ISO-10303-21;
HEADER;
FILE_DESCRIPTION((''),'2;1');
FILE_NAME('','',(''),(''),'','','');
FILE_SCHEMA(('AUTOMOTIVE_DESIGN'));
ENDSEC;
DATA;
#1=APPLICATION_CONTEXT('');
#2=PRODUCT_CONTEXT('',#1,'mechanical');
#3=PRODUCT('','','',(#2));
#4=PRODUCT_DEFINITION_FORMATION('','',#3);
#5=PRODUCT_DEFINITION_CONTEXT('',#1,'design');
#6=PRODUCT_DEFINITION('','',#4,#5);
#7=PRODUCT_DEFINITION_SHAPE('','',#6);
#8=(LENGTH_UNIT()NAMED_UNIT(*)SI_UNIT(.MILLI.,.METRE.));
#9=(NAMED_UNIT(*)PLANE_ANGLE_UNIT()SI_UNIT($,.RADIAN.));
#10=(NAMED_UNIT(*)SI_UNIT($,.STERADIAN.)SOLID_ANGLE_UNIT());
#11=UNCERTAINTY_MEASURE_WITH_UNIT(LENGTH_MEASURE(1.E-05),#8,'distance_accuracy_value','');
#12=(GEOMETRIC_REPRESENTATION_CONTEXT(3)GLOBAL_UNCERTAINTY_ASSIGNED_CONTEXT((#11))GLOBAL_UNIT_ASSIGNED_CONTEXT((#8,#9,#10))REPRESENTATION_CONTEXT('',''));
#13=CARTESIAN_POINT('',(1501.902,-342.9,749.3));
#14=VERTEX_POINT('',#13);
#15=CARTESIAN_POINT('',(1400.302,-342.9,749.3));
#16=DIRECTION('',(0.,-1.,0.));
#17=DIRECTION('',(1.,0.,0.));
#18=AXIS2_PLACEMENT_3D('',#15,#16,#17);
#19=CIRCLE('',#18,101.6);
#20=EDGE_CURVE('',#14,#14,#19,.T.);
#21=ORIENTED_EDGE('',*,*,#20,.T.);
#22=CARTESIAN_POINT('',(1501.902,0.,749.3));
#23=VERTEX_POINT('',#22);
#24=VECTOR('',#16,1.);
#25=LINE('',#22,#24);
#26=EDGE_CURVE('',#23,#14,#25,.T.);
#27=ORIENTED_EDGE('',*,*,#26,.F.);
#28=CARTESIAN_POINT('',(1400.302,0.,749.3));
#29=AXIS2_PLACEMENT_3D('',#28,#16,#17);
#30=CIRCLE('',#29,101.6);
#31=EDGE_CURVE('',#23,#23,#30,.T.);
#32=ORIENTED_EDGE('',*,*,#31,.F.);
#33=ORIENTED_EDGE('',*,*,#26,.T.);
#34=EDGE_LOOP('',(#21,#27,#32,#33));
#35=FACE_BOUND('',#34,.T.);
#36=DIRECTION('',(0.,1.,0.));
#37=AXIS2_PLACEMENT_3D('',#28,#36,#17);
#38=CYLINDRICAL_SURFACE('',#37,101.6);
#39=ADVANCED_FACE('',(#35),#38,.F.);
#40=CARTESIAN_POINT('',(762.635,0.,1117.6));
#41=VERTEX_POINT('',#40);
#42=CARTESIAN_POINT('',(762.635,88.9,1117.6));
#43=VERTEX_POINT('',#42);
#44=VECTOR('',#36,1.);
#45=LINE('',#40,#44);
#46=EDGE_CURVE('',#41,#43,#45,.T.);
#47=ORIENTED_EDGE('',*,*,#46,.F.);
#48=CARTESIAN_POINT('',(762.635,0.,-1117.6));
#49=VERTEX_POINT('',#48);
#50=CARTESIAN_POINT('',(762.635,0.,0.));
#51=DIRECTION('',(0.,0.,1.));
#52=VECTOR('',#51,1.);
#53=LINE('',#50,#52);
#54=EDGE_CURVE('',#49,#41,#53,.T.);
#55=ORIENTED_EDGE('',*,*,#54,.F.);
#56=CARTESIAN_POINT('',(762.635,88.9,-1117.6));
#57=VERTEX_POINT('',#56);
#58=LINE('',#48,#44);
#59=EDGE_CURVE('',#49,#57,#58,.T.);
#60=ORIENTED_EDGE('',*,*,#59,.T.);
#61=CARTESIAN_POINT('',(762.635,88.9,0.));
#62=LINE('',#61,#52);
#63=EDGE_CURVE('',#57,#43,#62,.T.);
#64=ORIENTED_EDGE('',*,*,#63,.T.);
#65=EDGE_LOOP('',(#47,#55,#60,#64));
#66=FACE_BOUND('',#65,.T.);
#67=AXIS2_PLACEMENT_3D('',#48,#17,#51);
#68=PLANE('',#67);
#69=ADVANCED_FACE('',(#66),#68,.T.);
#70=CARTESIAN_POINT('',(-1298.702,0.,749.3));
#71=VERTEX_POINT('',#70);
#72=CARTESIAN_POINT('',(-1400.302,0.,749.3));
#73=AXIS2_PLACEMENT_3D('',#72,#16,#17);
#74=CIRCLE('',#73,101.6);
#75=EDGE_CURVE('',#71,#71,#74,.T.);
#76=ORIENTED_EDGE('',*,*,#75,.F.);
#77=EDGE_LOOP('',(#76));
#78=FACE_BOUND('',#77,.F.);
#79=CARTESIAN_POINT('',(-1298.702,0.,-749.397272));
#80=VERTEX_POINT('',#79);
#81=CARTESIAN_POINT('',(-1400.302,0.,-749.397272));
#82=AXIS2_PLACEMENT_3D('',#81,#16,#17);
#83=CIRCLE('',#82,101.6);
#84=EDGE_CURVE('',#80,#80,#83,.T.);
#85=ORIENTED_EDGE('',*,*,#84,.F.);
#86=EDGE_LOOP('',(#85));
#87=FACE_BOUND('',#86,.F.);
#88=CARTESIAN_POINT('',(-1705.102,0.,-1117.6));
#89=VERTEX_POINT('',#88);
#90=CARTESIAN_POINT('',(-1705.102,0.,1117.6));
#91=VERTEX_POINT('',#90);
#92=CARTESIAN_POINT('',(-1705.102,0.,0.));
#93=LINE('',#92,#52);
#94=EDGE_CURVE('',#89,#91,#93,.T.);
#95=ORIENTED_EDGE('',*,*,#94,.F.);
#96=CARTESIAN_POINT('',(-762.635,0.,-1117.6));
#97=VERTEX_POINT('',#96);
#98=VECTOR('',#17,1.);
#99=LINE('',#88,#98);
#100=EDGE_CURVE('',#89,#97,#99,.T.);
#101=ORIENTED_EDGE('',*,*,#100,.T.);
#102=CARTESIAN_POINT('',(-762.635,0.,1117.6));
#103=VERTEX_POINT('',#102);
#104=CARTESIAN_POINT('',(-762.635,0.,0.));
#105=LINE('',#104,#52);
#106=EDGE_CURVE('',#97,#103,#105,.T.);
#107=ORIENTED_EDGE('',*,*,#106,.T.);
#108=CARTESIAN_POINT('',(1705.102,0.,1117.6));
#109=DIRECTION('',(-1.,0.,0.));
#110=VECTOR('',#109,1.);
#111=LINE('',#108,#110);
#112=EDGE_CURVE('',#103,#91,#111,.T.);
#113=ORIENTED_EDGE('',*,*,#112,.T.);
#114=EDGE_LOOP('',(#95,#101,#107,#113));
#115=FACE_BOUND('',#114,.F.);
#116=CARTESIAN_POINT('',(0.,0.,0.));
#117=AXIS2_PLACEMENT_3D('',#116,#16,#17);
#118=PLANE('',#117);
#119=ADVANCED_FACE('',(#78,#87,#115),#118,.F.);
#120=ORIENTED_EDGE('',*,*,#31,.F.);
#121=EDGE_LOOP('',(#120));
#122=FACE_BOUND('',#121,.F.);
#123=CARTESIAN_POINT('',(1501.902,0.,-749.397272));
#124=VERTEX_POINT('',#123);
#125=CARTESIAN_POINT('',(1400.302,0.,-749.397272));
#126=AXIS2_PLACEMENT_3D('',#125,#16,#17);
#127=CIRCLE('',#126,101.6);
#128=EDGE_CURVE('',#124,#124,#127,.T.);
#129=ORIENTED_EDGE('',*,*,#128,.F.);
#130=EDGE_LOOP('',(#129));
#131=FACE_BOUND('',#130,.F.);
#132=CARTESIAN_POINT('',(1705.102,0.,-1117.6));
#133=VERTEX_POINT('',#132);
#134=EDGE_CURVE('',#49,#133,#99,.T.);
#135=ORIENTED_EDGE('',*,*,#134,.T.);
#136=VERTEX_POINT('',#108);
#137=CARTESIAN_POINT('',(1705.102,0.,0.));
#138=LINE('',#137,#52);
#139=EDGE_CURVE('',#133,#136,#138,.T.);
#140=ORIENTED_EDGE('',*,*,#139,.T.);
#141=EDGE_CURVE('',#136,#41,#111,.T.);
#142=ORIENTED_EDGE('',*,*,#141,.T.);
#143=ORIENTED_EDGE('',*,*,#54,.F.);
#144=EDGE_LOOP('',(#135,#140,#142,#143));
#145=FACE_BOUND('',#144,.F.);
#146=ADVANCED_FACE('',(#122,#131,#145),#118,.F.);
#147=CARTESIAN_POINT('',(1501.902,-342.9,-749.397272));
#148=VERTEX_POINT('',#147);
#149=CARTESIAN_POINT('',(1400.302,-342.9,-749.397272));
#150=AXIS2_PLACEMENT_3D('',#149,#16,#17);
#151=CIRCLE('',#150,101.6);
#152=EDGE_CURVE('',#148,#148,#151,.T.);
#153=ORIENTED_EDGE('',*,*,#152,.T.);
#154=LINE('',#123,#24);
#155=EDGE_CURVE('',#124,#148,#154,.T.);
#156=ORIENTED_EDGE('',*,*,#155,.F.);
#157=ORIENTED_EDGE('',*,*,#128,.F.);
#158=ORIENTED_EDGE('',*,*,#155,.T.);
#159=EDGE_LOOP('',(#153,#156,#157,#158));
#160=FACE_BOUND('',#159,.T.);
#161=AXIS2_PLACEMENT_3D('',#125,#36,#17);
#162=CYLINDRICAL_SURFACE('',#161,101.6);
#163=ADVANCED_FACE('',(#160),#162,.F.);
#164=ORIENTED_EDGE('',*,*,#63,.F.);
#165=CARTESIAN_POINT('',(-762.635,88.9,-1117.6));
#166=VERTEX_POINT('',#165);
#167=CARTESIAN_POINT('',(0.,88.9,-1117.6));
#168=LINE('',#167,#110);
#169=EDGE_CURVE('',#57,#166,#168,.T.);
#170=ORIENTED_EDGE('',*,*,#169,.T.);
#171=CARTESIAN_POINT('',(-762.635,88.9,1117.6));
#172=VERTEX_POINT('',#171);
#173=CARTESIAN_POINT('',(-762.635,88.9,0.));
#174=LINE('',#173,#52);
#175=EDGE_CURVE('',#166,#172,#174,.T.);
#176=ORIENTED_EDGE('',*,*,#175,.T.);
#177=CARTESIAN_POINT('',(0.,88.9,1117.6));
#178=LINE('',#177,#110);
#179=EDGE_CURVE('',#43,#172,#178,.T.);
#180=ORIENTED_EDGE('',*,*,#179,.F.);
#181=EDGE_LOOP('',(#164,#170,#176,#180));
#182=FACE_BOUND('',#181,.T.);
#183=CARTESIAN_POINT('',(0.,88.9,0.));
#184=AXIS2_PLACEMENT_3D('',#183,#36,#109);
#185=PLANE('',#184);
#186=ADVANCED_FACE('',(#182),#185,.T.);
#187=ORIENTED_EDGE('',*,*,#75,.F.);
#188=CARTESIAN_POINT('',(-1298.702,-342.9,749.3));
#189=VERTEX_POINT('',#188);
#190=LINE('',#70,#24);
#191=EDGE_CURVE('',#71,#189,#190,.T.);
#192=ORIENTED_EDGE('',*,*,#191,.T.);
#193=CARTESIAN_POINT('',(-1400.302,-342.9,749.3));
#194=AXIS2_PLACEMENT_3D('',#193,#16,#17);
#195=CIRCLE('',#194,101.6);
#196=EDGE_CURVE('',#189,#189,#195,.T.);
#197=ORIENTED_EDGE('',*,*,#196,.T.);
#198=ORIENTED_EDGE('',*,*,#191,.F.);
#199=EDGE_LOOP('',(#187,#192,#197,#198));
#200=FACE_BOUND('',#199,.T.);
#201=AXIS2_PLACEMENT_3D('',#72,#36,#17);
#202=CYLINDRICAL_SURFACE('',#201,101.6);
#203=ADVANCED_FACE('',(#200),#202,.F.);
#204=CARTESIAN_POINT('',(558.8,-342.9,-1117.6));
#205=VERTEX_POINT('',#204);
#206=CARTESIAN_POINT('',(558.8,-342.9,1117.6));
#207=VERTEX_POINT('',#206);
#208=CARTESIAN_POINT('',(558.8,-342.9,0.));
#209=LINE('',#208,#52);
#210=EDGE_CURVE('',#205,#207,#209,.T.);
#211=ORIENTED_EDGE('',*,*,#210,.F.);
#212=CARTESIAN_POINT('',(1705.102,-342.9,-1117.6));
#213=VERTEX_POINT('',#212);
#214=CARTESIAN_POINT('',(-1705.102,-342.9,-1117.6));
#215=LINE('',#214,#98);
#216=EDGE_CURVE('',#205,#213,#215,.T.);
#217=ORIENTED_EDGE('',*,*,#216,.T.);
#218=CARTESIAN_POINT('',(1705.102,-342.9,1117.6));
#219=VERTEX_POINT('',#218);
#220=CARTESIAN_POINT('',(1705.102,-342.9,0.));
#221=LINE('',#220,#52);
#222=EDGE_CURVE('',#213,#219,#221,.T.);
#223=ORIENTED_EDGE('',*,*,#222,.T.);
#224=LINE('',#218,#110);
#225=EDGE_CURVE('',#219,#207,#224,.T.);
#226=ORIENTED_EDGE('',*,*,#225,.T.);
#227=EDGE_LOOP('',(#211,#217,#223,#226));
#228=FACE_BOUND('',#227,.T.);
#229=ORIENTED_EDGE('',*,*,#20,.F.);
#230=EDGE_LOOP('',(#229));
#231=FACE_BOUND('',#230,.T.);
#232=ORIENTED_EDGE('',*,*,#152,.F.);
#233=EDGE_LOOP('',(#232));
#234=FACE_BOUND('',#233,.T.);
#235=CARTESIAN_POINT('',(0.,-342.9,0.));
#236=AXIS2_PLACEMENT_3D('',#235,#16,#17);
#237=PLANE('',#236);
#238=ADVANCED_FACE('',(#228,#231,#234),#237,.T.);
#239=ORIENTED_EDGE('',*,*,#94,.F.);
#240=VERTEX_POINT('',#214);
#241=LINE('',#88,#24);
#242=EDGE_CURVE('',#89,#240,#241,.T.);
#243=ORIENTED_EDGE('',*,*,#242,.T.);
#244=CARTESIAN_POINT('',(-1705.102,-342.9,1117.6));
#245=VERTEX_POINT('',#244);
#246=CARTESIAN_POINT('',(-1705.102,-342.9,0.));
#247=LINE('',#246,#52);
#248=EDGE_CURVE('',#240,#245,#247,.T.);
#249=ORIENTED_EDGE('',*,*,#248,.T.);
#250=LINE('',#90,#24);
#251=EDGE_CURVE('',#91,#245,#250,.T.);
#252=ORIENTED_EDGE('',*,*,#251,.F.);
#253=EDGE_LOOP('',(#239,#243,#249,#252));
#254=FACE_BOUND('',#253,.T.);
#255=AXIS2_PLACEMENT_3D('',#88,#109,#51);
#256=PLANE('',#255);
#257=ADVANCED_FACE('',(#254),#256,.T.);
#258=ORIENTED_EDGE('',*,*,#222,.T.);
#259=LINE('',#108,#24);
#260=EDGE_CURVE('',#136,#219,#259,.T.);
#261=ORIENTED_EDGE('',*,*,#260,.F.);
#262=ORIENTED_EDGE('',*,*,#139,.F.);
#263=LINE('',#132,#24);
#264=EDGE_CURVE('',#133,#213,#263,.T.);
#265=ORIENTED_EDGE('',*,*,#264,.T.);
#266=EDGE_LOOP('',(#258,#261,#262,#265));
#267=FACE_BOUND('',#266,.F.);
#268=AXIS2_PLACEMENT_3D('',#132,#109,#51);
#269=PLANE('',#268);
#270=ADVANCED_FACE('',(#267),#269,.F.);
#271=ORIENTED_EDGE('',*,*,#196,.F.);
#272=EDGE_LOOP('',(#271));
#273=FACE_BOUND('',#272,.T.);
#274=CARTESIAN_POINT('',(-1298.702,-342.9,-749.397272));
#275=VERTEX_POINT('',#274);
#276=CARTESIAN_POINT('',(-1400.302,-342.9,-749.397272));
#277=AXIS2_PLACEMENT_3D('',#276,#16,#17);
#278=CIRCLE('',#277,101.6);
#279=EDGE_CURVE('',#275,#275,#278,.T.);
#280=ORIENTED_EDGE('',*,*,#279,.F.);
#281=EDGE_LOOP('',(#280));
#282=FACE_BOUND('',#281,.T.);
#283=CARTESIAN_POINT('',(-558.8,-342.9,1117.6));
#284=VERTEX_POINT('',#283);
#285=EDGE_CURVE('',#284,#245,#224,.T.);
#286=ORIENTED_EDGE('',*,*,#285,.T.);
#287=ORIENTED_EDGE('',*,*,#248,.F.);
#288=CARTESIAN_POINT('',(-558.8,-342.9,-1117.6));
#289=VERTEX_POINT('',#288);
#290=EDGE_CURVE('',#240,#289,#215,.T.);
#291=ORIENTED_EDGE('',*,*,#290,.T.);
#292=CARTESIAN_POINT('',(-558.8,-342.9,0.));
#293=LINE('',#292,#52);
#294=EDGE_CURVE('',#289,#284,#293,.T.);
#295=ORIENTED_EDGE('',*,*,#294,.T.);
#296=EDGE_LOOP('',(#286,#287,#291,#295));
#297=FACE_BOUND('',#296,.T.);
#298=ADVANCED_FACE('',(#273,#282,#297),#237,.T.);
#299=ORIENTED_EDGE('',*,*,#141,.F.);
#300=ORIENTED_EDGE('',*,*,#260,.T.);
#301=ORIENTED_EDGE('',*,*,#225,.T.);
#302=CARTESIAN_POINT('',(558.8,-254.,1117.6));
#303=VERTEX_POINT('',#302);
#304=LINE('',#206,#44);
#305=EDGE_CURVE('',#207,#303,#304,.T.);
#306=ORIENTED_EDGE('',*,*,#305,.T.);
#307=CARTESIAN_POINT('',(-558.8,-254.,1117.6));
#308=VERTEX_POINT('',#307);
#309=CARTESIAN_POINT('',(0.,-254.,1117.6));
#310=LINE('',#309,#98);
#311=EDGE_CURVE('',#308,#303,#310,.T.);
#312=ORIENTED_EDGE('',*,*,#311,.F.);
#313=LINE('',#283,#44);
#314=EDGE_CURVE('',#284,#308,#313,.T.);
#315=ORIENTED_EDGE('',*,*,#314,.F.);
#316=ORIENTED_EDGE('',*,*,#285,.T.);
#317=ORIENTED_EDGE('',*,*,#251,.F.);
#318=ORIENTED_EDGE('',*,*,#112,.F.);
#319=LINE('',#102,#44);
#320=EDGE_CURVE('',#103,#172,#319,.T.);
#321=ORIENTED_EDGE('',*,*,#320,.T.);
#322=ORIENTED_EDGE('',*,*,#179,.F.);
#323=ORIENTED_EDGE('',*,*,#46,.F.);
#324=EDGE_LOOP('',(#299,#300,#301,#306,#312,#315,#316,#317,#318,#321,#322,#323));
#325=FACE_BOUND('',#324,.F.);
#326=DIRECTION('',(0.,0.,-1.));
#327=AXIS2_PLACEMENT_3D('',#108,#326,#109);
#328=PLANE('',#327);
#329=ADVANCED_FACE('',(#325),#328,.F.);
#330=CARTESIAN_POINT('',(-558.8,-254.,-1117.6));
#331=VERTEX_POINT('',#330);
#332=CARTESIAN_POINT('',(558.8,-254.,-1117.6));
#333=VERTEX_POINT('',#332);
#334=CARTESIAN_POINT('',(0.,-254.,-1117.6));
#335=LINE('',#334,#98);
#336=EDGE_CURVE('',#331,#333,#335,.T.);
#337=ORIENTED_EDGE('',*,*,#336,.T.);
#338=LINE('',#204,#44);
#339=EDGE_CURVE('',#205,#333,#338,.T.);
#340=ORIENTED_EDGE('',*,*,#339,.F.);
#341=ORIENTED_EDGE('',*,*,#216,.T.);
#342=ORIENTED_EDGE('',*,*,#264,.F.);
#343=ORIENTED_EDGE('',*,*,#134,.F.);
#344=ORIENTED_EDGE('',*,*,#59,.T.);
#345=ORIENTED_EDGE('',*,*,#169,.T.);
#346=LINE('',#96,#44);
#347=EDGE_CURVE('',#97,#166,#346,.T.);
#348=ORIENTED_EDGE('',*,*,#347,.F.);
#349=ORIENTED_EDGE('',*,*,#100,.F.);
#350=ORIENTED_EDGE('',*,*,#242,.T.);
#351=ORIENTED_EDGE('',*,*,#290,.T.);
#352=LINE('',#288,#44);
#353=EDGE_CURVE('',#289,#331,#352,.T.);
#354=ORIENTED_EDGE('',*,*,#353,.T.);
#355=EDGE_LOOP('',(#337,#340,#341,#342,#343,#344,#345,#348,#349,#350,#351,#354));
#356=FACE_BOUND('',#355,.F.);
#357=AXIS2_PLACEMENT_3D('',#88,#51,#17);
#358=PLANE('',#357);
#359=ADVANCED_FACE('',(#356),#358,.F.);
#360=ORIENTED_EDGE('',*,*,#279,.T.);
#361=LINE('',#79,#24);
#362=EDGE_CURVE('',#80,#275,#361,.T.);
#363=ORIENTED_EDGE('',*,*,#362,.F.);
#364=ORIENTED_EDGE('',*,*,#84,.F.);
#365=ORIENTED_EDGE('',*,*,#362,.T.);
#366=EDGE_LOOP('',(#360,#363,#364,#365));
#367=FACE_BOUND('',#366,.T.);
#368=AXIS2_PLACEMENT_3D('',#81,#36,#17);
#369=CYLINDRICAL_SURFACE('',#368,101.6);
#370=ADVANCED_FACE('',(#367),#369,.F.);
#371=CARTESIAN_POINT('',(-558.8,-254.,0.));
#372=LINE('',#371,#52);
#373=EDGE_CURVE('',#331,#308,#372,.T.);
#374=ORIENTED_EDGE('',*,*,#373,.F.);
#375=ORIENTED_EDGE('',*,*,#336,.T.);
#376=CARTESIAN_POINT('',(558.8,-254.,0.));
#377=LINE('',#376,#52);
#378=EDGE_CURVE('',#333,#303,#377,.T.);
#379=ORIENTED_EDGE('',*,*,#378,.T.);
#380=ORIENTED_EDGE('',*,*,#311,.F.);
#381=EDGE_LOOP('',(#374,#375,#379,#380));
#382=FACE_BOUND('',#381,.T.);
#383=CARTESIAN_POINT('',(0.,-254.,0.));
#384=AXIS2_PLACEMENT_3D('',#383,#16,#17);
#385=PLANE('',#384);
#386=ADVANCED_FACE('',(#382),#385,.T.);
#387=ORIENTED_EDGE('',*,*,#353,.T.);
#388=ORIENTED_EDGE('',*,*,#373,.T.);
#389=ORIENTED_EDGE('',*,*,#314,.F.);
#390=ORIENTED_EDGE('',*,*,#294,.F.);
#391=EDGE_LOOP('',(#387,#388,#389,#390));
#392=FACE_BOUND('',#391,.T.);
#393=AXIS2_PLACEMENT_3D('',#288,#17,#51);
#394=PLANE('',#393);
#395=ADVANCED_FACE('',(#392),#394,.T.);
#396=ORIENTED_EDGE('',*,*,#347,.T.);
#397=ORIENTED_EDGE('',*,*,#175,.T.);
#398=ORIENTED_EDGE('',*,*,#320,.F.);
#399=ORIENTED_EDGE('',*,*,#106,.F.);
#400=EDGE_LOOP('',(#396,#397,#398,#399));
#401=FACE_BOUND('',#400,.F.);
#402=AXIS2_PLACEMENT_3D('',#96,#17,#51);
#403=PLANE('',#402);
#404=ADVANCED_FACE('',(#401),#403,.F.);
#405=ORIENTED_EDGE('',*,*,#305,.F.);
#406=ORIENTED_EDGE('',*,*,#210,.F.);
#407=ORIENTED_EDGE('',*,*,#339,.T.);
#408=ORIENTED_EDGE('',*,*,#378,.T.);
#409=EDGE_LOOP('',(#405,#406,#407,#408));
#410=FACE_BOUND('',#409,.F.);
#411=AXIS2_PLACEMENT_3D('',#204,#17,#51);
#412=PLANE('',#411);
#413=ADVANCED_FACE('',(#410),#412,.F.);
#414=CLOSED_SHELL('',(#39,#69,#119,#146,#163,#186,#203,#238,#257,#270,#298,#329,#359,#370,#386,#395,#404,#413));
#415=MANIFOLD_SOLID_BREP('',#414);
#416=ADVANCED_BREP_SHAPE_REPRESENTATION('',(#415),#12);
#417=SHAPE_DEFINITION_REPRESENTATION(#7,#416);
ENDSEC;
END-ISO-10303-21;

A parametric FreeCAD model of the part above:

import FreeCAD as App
import Part
import Sketcher
from FreeCAD import Vector
Q = App.Units.Quantity

doc = App.newDocument("Part")
body = doc.addObject("PartDesign::Body", "Body")

# Sketch on XZ plane
sketch1 = body.newObject("Sketcher::SketchObject", "Sketch")
sketch1.AttachmentSupport = (doc.getObject("XZ_Plane"), [""])
sketch1.MapMode = "FlatFace"
sketch1.addGeometry([
    Part.LineSegment(Vector(-559, 1118, 0), Vector(-559, -1118, 0)),
    Part.LineSegment(Vector(-559, -1118, 0), Vector(559, -1118, 0)),
    Part.LineSegment(Vector(559, -1118, 0), Vector(559, 1118, 0)),
    Part.LineSegment(Vector(559, 1118, 0), Vector(-559, 1118, 0)),
], False)
sketch1.addConstraint([
    Sketcher.Constraint("Coincident", 0, 2, 1, 1),
    Sketcher.Constraint("Coincident", 1, 2, 2, 1),
    Sketcher.Constraint("Coincident", 2, 2, 3, 1),
    Sketcher.Constraint("Coincident", 3, 2, 0, 1),
    Sketcher.Constraint("Vertical", 0),
    Sketcher.Constraint("Horizontal", 1),
    Sketcher.Constraint("Vertical", 2),
    Sketcher.Constraint("Horizontal", 3),
    Sketcher.Constraint("Symmetric", 0, 2, 2, 2, -1, 1),
    Sketcher.Constraint("DistanceX", 1, 1, 1, 2, Q("44 in")),
    Sketcher.Constraint("DistanceY", 0, 2, 0, 1, Q("88 in")),
])
pad1 = body.newObject("PartDesign::Pad", "Pad")
pad1.Profile = sketch1
pad1.Length = Q("13.05 in")

# Sketch on XZ plane
sketch2 = body.newObject("Sketcher::SketchObject", "Sketch001")
sketch2.AttachmentSupport = (doc.getObject("XZ_Plane"), [""])
sketch2.MapMode = "FlatFace"
sketch2.addGeometry([
    Part.LineSegment(Vector(1705, -1118, 0), Vector(1705, 1118, 0)),  # 0
    Part.LineSegment(Vector(1705, 1118, 0), Vector(-1705, 1118, 0)),  # 1
    Part.LineSegment(Vector(-1705, 1118, 0), Vector(-1705, -1118, 0)),  # 2
    Part.LineSegment(Vector(-1705, -1118, 0), Vector(1705, -1118, 0)),  # 3
    Part.Circle(Vector(-1400, -749, 0), Vector(0, 0, 1), 102),  # 4
    Part.Circle(Vector(1400, -749, 0), Vector(0, 0, 1), 102),  # 5
    Part.Circle(Vector(-1400, 749, 0), Vector(0, 0, 1), 102),  # 6
    Part.Circle(Vector(1400, 749, 0), Vector(0, 0, 1), 102),  # 7
], False)
sketch2.addConstraint([
    Sketcher.Constraint("Coincident", 0, 2, 1, 1),
    Sketcher.Constraint("Coincident", 1, 2, 2, 1),
    Sketcher.Constraint("Coincident", 2, 2, 3, 1),
    Sketcher.Constraint("Coincident", 3, 2, 0, 1),
    Sketcher.Constraint("Vertical", 0),
    Sketcher.Constraint("Horizontal", 1),
    Sketcher.Constraint("Vertical", 2),
    Sketcher.Constraint("Horizontal", 3),
    Sketcher.Constraint("Equal", 4, 5),
    Sketcher.Constraint("Equal", 5, 6),
    Sketcher.Constraint("Equal", 6, 7),
    Sketcher.Constraint("Symmetric", 0, 2, 2, 2, -1, 1),
    Sketcher.Constraint("Symmetric", 4, 3, 5, 3, -2),
    Sketcher.Constraint("Symmetric", 6, 3, 7, 3, -2),
    Sketcher.Constraint("Vertical", 4, 3, 6, 3),
    Sketcher.Constraint("Diameter", 4, Q("8 in")),
    Sketcher.Constraint("DistanceY", 0, 1, 0, 2, Q("88 in")),
    Sketcher.Constraint("DistanceX", 7, 3, 0, 2, Q("12 in")),
    Sketcher.Constraint("DistanceX", 1, 2, 1, 1, Q("134.26 in")),
    Sketcher.Constraint("DistanceY", -1, 1, 6, 3, Q("29.5 in")),
    Sketcher.Constraint("DistanceY", 4, 3, -1, 1, Q("749.397272 mm")),
])
pad2 = body.newObject("PartDesign::Pad", "Pad001")
pad2.Profile = sketch2
pad2.Length = Q("13.5 in")

# Sketch on XZ plane
sketch3 = body.newObject("Sketcher::SketchObject", "Sketch002")
sketch3.AttachmentSupport = (doc.getObject("XZ_Plane"), [""])
sketch3.MapMode = "FlatFace"
sketch3.addGeometry([
    Part.LineSegment(Vector(763, 1118, 0), Vector(763, -1118, 0)),
    Part.LineSegment(Vector(763, -1118, 0), Vector(-763, -1118, 0)),
    Part.LineSegment(Vector(-763, -1118, 0), Vector(-763, 1118, 0)),
    Part.LineSegment(Vector(-763, 1118, 0), Vector(763, 1118, 0)),
], False)
sketch3.addConstraint([
    Sketcher.Constraint("Coincident", 0, 2, 1, 1),
    Sketcher.Constraint("Coincident", 1, 2, 2, 1),
    Sketcher.Constraint("Coincident", 2, 2, 3, 1),
    Sketcher.Constraint("Coincident", 3, 2, 0, 1),
    Sketcher.Constraint("Vertical", 0),
    Sketcher.Constraint("Horizontal", 1),
    Sketcher.Constraint("Vertical", 2),
    Sketcher.Constraint("Horizontal", 3),
    Sketcher.Constraint("Symmetric", 0, 2, 2, 2, -1, 1),
    Sketcher.Constraint("DistanceY", 0, 2, 0, 1, Q("88 in")),
    Sketcher.Constraint("DistanceX", 1, 2, 1, 1, Q("60.05 in")),
])
pad3 = body.newObject("PartDesign::Pad", "Pad002")
pad3.Profile = sketch3
pad3.Length = Q("3.5 in")
pad3.Reversed = True

# Sketch on XZ plane
sketch4 = body.newObject("Sketcher::SketchObject", "Sketch003")
sketch4.AttachmentSupport = (doc.getObject("XZ_Plane"), [""])
sketch4.MapMode = "FlatFace"
sketch4.AttachmentOffset = App.Placement(Vector(0, 0, 13.5 * 25.4), App.Rotation())
sketch4.addGeometry([
    Part.LineSegment(Vector(-559, 1118, 0), Vector(-559, -1118, 0)),
    Part.LineSegment(Vector(-559, -1118, 0), Vector(559, -1118, 0)),
    Part.LineSegment(Vector(559, -1118, 0), Vector(559, 1118, 0)),
    Part.LineSegment(Vector(559, 1118, 0), Vector(-559, 1118, 0)),
], False)
sketch4.addConstraint([
    Sketcher.Constraint("Coincident", 0, 2, 1, 1),
    Sketcher.Constraint("Coincident", 1, 2, 2, 1),
    Sketcher.Constraint("Coincident", 2, 2, 3, 1),
    Sketcher.Constraint("Coincident", 3, 2, 0, 1),
    Sketcher.Constraint("Vertical", 0),
    Sketcher.Constraint("Horizontal", 1),
    Sketcher.Constraint("Vertical", 2),
    Sketcher.Constraint("Horizontal", 3),
    Sketcher.Constraint("Symmetric", 0, 2, 2, 2, -1, 1),
    Sketcher.Constraint("DistanceX", 1, 1, 1, 2, Q("44 in")),
    Sketcher.Constraint("DistanceY", 0, 2, 0, 1, Q("88 in")),
])
pocket1 = body.newObject("PartDesign::Pocket", "Pocket")
pocket1.Profile = sketch4
pocket1.Length = Q("3.5 in")

doc.recompute()
